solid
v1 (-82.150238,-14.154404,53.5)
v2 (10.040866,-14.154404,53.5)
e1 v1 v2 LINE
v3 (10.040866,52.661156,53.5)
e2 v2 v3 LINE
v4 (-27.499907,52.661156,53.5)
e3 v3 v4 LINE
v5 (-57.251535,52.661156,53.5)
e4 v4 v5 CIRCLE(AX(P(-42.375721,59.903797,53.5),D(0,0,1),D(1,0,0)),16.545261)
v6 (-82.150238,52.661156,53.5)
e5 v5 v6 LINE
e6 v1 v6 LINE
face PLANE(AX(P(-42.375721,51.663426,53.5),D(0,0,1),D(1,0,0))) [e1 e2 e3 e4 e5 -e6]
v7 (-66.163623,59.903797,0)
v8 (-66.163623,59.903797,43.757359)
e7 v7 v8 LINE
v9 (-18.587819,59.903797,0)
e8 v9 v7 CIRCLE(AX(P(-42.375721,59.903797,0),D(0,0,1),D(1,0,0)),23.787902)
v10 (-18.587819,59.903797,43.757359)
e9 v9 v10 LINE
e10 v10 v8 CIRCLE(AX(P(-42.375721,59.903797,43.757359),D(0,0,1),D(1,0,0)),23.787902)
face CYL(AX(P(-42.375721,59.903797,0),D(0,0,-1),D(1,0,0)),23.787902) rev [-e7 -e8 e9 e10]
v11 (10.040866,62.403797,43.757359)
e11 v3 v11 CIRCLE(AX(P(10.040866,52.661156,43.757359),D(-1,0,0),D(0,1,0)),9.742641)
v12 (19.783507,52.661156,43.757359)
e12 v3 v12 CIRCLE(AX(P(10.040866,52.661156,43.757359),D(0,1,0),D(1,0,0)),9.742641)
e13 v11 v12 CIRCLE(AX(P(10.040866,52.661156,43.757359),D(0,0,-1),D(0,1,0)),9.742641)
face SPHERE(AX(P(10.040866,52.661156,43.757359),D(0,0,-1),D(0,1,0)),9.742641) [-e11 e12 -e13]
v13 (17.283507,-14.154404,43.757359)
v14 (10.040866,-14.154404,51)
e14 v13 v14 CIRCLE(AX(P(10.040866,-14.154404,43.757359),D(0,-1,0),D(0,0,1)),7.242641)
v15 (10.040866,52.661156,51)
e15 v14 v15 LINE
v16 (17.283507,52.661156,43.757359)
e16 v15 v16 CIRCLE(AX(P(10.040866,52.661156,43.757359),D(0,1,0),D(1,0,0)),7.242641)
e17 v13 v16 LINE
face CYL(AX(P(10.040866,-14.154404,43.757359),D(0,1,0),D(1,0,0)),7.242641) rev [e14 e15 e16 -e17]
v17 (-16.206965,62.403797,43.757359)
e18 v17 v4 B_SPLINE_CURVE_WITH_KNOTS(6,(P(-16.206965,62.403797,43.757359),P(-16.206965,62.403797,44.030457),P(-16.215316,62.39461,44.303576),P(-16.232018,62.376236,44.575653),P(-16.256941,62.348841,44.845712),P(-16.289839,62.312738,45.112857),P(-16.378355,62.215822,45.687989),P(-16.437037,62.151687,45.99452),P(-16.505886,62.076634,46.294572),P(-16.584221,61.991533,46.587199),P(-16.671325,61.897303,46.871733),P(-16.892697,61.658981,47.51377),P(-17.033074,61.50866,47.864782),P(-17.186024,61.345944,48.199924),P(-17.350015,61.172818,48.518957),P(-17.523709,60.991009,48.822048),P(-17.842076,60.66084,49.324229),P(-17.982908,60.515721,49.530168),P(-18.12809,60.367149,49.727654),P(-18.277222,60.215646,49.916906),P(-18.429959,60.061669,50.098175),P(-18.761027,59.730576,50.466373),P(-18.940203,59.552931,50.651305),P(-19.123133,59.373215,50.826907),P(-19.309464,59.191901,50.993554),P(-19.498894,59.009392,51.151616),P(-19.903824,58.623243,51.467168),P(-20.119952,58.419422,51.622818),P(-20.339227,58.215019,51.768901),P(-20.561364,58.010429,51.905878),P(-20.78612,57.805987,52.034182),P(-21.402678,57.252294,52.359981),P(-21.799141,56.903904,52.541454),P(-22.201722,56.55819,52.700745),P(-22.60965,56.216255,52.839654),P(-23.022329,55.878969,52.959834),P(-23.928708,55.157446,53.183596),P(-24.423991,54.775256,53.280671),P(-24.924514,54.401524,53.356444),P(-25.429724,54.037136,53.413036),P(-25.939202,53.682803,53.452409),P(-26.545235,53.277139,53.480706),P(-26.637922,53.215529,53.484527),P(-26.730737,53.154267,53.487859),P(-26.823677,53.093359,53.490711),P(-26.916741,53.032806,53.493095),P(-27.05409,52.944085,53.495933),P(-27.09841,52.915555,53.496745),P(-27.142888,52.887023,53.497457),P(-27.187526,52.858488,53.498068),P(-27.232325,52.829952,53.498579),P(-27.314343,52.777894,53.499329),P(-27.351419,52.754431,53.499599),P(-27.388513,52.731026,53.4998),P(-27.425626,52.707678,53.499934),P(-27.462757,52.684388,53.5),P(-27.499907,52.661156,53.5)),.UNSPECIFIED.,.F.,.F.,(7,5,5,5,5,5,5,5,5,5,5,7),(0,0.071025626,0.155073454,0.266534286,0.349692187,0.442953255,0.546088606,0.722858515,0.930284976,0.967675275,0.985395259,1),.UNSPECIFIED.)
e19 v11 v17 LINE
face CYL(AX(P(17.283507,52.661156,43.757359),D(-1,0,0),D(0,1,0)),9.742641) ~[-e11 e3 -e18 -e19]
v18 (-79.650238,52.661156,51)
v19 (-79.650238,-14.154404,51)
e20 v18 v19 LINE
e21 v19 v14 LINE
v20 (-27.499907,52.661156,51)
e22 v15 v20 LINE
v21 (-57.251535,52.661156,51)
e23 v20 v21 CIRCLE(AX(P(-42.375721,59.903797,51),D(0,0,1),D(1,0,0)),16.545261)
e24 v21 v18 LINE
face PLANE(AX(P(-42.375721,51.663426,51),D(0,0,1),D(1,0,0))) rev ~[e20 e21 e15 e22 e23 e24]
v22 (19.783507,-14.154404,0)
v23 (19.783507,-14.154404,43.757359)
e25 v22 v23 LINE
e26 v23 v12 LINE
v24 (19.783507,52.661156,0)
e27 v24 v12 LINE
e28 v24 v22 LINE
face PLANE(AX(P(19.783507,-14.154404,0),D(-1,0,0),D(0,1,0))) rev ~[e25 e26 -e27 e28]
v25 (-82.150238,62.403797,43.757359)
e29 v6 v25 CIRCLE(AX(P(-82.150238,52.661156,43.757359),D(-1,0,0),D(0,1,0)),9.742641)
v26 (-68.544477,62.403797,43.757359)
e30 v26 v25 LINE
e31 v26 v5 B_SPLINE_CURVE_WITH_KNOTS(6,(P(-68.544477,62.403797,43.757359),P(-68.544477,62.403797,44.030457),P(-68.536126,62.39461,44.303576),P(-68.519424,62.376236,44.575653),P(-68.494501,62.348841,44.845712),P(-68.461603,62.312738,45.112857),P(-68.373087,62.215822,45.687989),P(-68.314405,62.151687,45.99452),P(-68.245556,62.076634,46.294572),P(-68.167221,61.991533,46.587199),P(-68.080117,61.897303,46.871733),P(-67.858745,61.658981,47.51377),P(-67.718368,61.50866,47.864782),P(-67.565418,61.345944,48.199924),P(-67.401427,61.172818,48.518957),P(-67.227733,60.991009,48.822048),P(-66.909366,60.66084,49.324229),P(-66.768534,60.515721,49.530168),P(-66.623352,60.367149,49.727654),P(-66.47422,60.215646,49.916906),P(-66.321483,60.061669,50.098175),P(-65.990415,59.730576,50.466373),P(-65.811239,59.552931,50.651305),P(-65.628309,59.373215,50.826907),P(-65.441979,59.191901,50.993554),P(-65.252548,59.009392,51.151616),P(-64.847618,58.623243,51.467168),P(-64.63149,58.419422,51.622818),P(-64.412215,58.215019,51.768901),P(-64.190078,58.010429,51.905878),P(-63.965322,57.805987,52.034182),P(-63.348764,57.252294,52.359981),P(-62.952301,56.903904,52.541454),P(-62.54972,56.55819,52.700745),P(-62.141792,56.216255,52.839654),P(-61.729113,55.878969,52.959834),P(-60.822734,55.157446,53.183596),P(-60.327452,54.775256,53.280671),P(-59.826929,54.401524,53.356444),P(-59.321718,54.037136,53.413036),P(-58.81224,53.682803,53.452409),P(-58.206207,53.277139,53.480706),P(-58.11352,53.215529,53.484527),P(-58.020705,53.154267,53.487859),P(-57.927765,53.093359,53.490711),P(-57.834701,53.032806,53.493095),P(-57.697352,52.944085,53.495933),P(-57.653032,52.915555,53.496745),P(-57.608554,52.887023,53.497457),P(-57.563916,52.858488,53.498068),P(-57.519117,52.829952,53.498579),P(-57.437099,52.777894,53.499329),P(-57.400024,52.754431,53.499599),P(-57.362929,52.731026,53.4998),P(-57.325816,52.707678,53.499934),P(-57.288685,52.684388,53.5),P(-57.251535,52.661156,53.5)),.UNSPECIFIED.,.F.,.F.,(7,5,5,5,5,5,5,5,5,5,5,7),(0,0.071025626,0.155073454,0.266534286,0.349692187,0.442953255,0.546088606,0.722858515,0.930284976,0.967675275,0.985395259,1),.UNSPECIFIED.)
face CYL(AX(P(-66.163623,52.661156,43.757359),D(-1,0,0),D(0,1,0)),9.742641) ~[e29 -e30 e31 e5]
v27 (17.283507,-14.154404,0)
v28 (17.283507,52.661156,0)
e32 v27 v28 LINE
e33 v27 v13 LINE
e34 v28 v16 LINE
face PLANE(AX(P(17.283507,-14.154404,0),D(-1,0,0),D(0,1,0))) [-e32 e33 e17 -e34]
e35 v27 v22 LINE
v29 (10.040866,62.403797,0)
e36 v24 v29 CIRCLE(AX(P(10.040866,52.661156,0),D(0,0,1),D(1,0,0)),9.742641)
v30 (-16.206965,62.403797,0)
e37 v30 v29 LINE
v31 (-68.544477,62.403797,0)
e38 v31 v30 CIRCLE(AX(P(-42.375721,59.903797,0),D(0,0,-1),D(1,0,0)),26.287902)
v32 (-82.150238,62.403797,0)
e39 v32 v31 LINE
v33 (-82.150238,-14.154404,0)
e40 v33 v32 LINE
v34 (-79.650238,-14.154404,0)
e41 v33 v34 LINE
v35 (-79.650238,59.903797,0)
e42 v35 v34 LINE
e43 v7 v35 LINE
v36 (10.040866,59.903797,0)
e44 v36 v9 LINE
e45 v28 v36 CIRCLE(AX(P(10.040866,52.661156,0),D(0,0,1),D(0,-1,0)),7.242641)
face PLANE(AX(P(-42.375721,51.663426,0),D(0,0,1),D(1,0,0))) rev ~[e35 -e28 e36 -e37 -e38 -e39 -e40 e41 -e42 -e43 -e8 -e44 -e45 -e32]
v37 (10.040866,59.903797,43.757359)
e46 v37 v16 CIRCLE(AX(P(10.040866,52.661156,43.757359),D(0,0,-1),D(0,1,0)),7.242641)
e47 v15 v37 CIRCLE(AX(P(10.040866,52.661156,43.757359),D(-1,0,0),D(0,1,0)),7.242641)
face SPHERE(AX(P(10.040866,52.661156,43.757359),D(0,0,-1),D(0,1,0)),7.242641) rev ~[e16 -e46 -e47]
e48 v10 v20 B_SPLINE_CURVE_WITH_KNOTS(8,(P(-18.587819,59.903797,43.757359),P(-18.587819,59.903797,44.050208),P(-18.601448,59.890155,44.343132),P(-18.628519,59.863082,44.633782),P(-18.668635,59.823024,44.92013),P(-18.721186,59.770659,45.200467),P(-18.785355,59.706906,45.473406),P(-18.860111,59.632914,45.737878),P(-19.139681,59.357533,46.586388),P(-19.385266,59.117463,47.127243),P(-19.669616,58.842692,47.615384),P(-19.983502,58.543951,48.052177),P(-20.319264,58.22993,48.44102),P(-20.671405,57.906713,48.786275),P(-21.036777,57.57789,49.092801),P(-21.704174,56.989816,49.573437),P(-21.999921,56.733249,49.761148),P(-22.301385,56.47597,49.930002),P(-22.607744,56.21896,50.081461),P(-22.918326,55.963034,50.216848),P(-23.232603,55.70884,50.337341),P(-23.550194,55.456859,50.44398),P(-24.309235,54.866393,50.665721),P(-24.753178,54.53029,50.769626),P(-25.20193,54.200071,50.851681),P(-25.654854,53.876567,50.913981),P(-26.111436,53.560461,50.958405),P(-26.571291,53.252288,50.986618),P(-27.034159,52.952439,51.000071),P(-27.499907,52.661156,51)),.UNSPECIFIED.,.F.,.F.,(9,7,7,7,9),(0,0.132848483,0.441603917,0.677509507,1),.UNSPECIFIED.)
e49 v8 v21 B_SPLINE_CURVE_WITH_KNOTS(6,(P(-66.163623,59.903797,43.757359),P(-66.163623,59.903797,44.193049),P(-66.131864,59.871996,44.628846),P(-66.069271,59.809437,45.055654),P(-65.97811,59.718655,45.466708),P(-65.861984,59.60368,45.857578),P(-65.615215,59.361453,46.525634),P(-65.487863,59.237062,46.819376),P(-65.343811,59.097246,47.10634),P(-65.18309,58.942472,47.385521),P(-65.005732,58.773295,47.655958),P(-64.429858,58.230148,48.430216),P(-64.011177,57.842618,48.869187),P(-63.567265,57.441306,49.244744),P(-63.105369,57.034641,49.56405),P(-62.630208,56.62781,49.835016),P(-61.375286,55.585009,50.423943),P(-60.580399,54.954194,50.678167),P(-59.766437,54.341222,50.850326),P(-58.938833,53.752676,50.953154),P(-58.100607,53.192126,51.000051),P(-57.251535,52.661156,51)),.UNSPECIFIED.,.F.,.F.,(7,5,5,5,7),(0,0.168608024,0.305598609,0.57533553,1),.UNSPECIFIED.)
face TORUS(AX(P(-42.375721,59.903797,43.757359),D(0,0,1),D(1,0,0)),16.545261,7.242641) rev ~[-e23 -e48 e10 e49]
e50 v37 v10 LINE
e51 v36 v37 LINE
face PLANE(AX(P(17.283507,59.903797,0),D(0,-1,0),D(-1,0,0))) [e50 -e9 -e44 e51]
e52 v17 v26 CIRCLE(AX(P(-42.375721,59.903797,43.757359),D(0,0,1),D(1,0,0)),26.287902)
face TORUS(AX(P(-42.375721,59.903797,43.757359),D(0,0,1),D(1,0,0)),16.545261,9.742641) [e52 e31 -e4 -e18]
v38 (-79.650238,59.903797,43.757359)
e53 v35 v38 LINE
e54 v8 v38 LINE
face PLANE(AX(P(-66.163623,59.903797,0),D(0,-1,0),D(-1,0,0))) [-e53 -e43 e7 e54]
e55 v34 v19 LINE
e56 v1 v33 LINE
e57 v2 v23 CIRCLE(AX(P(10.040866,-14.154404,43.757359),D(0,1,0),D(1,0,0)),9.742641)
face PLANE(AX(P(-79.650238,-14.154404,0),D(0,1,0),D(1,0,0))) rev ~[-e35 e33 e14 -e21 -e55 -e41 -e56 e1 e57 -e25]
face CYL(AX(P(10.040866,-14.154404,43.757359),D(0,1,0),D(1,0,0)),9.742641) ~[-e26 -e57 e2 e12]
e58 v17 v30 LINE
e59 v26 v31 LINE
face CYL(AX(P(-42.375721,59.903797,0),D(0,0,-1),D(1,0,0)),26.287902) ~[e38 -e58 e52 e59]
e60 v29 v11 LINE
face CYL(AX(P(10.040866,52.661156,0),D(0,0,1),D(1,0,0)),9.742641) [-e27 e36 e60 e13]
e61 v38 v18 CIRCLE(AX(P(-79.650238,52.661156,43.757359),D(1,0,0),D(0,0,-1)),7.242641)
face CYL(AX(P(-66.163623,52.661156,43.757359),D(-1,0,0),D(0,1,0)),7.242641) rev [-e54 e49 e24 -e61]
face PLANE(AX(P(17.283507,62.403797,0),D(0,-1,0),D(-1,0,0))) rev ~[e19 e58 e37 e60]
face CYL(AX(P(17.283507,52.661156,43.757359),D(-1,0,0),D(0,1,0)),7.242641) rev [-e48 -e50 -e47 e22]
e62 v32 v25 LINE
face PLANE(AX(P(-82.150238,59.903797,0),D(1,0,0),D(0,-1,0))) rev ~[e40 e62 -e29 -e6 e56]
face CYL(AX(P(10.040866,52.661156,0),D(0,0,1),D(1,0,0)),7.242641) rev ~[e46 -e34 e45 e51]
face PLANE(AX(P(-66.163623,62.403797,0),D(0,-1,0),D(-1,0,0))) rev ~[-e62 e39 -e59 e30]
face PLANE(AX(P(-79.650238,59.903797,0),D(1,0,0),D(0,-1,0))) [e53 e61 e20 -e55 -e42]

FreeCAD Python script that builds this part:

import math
import FreeCAD as App
import Part
import Sketcher
from FreeCAD import Vector


def edges_at(feature, points):
    """Names of the edges that pass closest to the given points."""
    edges = feature.Shape.Edges
    near = lambda p: min(range(len(edges)), key=lambda i: edges[i].distToShape(Part.Vertex(*p))[0])
    return sorted({f"Edge{near(p) + 1}" for p in points})


def faces_at(feature, points):
    """Names of the faces that lie closest to the given points."""
    faces = feature.Shape.Faces
    near = lambda p: min(range(len(faces)), key=lambda i: faces[i].distToShape(Part.Vertex(*p))[0])
    return sorted({f"Face{near(p) + 1}" for p in points})

doc = App.newDocument("Part")
params = doc.addObject("Spreadsheet::Sheet", "Params")
for row, (alias, value) in enumerate([
    ("pad1_length", "51 mm"),
    ("fillet_radius", "7.242641 mm"),
    ("thickness_wall", "2.5 mm"),
], start=1):
    params.set(f"A{row}", alias)
    params.set(f"B{row}", "=" + value)
    params.setAlias(f"B{row}", alias)

body = doc.addObject("PartDesign::Body", "Body")

# Sketch on XY plane
sketch1 = body.newObject("Sketcher::SketchObject", "Sketch")
sketch1.AttachmentSupport = (doc.getObject("XY_Plane"), [""])
sketch1.MapMode = "FlatFace"
sketch1.addGeometry([
    Part.ArcOfCircle(Part.Circle(Vector(-42.375721, 59.903797, 0), Vector(0, 0, 1), 23.787902), math.radians(0), math.radians(180)),  # 0
    Part.LineSegment(Vector(-66.163623, 59.903797, 0), Vector(-79.650238, 59.903797, 0)),  # 1
    Part.LineSegment(Vector(-79.650238, 59.903797, 0), Vector(-79.650238, -14.154404, 0)),  # 2
    Part.LineSegment(Vector(-79.650238, -14.154404, 0), Vector(17.283507, -14.154404, 0)),  # 3
    Part.LineSegment(Vector(17.283507, -14.154404, 0), Vector(17.283507, 59.903797, 0)),  # 4
    Part.LineSegment(Vector(17.283507, 59.903797, 0), Vector(-18.587819, 59.903797, 0)),  # 5
], False)
sketch1.addConstraint([
    Sketcher.Constraint("Coincident", 0, 2, 1, 1),
    Sketcher.Constraint("Coincident", 1, 2, 2, 1),
    Sketcher.Constraint("Coincident", 2, 2, 3, 1),
    Sketcher.Constraint("Coincident", 3, 2, 4, 1),
    Sketcher.Constraint("Coincident", 4, 2, 5, 1),
    Sketcher.Constraint("Coincident", 5, 2, 0, 1),
    Sketcher.Constraint("Horizontal", 1),
    Sketcher.Constraint("Vertical", 2),
    Sketcher.Constraint("Horizontal", 3),
    Sketcher.Constraint("Vertical", 4),
    Sketcher.Constraint("Horizontal", 5),
    Sketcher.Constraint("Horizontal", 1, 2, 4, 2),
    Sketcher.Constraint("DistanceY", 2, 2, 2, 1, 74.058201),
    Sketcher.Constraint("Radius", 0, 23.787902),
    Sketcher.Constraint("DistanceY", 2, 2, 0, 3, 74.058201),
    Sketcher.Constraint("DistanceX", 1, 2, 1, 1, 13.486615),
    Sketcher.Constraint("DistanceX", 3, 1, 3, 2, 96.933745),
    Sketcher.Constraint("DistanceX", 0, 3, -1, 1, 42.375721),
    Sketcher.Constraint("DistanceY", -1, 1, 0, 3, 59.903797),
])
pad1 = body.newObject("PartDesign::Pad", "Pad")
pad1.Profile = sketch1
pad1.setExpression("Length", "Params.pad1_length")
doc.recompute()

fillet = body.newObject("PartDesign::Fillet", "Fillet")
fillet.Base = (pad1, edges_at(pad1, [
    (17.284, 59.904, 25.5),
    (-0.652, 59.904, 51),
    (17.284, 22.875, 51),
    (-42.376, 83.692, 51),
    (-72.907, 59.904, 51),
]))
fillet.setExpression("Radius", "Params.fillet_radius")
doc.recompute()

thickness = body.newObject("PartDesign::Thickness", "Thickness")
thickness.Base = (fillet, faces_at(fillet, [(-31.183, -14.154, 25.5), (-31.183, 34.769, 0)]))
thickness.setExpression("Value", "Params.thickness_wall")
thickness.Reversed = False
thickness.Join = "Intersection"

doc.recompute()
